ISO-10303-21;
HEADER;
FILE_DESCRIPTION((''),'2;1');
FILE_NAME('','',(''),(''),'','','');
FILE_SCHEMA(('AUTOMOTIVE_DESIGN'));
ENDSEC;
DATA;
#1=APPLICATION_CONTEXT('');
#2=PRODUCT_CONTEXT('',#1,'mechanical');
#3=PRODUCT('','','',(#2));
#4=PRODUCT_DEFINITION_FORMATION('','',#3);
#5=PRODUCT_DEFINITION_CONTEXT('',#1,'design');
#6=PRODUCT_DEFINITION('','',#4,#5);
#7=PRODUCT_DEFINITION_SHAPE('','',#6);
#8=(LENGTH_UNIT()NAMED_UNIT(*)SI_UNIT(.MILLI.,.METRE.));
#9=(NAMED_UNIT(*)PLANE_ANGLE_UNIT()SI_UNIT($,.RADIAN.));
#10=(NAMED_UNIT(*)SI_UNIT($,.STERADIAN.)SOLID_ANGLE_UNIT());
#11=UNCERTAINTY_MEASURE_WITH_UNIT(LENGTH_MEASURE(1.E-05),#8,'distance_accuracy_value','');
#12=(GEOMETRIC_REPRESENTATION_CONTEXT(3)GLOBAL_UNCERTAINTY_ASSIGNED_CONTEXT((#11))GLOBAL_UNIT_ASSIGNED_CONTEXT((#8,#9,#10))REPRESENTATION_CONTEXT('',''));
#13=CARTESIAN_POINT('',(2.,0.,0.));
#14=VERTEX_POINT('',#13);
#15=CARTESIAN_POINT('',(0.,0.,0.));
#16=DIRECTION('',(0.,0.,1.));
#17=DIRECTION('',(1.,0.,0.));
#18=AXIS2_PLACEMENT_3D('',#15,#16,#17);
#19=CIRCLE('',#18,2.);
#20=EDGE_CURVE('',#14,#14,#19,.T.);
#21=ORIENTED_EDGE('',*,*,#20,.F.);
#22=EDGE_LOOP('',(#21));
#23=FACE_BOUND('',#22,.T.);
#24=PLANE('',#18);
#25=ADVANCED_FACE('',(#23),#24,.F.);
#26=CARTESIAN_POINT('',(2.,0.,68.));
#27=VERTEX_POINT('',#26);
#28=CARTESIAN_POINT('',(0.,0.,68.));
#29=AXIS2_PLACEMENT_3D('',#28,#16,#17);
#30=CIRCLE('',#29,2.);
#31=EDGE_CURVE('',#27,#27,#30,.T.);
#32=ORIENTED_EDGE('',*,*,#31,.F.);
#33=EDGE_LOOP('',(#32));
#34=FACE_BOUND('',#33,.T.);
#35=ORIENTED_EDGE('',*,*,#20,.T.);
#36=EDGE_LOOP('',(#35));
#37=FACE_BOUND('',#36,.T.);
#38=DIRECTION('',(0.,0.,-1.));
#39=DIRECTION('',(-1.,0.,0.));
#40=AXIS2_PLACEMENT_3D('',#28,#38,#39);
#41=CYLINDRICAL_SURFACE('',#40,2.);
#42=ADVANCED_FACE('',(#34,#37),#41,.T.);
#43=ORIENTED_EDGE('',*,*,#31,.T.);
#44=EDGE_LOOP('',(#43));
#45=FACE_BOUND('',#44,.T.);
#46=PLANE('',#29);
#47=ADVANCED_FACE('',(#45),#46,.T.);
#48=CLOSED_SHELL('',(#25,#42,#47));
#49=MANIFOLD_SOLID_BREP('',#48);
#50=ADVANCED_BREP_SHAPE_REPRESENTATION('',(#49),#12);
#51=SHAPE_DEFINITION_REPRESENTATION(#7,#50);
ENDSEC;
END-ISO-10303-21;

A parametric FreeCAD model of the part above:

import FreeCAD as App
import Part
import Sketcher
from FreeCAD import Vector
Q = App.Units.Quantity

doc = App.newDocument("Part")
body = doc.addObject("PartDesign::Body", "Body")

# Sketch on XY plane
sketch1 = doc.addObject("Sketcher::SketchObject", "Sketch")
body.addObject(sketch1)
sketch1.AttachmentSupport = (doc.XY_Plane, [""])
sketch1.MapMode = "FlatFace"
sketch1.addGeometry(Part.Circle(Vector(0, 0, 0), Vector(0, 0, 1), 2), False)
sketch1.addConstraint(Sketcher.Constraint("Coincident", 0, 3, -1, 1))
sketch1.addConstraint(Sketcher.Constraint("Diameter", 0, Q("4 mm")))
pad1 = doc.addObject("PartDesign::Pad", "Pad")
body.addObject(pad1)
pad1.Profile = sketch1
pad1.Length = 68

doc.recompute()
